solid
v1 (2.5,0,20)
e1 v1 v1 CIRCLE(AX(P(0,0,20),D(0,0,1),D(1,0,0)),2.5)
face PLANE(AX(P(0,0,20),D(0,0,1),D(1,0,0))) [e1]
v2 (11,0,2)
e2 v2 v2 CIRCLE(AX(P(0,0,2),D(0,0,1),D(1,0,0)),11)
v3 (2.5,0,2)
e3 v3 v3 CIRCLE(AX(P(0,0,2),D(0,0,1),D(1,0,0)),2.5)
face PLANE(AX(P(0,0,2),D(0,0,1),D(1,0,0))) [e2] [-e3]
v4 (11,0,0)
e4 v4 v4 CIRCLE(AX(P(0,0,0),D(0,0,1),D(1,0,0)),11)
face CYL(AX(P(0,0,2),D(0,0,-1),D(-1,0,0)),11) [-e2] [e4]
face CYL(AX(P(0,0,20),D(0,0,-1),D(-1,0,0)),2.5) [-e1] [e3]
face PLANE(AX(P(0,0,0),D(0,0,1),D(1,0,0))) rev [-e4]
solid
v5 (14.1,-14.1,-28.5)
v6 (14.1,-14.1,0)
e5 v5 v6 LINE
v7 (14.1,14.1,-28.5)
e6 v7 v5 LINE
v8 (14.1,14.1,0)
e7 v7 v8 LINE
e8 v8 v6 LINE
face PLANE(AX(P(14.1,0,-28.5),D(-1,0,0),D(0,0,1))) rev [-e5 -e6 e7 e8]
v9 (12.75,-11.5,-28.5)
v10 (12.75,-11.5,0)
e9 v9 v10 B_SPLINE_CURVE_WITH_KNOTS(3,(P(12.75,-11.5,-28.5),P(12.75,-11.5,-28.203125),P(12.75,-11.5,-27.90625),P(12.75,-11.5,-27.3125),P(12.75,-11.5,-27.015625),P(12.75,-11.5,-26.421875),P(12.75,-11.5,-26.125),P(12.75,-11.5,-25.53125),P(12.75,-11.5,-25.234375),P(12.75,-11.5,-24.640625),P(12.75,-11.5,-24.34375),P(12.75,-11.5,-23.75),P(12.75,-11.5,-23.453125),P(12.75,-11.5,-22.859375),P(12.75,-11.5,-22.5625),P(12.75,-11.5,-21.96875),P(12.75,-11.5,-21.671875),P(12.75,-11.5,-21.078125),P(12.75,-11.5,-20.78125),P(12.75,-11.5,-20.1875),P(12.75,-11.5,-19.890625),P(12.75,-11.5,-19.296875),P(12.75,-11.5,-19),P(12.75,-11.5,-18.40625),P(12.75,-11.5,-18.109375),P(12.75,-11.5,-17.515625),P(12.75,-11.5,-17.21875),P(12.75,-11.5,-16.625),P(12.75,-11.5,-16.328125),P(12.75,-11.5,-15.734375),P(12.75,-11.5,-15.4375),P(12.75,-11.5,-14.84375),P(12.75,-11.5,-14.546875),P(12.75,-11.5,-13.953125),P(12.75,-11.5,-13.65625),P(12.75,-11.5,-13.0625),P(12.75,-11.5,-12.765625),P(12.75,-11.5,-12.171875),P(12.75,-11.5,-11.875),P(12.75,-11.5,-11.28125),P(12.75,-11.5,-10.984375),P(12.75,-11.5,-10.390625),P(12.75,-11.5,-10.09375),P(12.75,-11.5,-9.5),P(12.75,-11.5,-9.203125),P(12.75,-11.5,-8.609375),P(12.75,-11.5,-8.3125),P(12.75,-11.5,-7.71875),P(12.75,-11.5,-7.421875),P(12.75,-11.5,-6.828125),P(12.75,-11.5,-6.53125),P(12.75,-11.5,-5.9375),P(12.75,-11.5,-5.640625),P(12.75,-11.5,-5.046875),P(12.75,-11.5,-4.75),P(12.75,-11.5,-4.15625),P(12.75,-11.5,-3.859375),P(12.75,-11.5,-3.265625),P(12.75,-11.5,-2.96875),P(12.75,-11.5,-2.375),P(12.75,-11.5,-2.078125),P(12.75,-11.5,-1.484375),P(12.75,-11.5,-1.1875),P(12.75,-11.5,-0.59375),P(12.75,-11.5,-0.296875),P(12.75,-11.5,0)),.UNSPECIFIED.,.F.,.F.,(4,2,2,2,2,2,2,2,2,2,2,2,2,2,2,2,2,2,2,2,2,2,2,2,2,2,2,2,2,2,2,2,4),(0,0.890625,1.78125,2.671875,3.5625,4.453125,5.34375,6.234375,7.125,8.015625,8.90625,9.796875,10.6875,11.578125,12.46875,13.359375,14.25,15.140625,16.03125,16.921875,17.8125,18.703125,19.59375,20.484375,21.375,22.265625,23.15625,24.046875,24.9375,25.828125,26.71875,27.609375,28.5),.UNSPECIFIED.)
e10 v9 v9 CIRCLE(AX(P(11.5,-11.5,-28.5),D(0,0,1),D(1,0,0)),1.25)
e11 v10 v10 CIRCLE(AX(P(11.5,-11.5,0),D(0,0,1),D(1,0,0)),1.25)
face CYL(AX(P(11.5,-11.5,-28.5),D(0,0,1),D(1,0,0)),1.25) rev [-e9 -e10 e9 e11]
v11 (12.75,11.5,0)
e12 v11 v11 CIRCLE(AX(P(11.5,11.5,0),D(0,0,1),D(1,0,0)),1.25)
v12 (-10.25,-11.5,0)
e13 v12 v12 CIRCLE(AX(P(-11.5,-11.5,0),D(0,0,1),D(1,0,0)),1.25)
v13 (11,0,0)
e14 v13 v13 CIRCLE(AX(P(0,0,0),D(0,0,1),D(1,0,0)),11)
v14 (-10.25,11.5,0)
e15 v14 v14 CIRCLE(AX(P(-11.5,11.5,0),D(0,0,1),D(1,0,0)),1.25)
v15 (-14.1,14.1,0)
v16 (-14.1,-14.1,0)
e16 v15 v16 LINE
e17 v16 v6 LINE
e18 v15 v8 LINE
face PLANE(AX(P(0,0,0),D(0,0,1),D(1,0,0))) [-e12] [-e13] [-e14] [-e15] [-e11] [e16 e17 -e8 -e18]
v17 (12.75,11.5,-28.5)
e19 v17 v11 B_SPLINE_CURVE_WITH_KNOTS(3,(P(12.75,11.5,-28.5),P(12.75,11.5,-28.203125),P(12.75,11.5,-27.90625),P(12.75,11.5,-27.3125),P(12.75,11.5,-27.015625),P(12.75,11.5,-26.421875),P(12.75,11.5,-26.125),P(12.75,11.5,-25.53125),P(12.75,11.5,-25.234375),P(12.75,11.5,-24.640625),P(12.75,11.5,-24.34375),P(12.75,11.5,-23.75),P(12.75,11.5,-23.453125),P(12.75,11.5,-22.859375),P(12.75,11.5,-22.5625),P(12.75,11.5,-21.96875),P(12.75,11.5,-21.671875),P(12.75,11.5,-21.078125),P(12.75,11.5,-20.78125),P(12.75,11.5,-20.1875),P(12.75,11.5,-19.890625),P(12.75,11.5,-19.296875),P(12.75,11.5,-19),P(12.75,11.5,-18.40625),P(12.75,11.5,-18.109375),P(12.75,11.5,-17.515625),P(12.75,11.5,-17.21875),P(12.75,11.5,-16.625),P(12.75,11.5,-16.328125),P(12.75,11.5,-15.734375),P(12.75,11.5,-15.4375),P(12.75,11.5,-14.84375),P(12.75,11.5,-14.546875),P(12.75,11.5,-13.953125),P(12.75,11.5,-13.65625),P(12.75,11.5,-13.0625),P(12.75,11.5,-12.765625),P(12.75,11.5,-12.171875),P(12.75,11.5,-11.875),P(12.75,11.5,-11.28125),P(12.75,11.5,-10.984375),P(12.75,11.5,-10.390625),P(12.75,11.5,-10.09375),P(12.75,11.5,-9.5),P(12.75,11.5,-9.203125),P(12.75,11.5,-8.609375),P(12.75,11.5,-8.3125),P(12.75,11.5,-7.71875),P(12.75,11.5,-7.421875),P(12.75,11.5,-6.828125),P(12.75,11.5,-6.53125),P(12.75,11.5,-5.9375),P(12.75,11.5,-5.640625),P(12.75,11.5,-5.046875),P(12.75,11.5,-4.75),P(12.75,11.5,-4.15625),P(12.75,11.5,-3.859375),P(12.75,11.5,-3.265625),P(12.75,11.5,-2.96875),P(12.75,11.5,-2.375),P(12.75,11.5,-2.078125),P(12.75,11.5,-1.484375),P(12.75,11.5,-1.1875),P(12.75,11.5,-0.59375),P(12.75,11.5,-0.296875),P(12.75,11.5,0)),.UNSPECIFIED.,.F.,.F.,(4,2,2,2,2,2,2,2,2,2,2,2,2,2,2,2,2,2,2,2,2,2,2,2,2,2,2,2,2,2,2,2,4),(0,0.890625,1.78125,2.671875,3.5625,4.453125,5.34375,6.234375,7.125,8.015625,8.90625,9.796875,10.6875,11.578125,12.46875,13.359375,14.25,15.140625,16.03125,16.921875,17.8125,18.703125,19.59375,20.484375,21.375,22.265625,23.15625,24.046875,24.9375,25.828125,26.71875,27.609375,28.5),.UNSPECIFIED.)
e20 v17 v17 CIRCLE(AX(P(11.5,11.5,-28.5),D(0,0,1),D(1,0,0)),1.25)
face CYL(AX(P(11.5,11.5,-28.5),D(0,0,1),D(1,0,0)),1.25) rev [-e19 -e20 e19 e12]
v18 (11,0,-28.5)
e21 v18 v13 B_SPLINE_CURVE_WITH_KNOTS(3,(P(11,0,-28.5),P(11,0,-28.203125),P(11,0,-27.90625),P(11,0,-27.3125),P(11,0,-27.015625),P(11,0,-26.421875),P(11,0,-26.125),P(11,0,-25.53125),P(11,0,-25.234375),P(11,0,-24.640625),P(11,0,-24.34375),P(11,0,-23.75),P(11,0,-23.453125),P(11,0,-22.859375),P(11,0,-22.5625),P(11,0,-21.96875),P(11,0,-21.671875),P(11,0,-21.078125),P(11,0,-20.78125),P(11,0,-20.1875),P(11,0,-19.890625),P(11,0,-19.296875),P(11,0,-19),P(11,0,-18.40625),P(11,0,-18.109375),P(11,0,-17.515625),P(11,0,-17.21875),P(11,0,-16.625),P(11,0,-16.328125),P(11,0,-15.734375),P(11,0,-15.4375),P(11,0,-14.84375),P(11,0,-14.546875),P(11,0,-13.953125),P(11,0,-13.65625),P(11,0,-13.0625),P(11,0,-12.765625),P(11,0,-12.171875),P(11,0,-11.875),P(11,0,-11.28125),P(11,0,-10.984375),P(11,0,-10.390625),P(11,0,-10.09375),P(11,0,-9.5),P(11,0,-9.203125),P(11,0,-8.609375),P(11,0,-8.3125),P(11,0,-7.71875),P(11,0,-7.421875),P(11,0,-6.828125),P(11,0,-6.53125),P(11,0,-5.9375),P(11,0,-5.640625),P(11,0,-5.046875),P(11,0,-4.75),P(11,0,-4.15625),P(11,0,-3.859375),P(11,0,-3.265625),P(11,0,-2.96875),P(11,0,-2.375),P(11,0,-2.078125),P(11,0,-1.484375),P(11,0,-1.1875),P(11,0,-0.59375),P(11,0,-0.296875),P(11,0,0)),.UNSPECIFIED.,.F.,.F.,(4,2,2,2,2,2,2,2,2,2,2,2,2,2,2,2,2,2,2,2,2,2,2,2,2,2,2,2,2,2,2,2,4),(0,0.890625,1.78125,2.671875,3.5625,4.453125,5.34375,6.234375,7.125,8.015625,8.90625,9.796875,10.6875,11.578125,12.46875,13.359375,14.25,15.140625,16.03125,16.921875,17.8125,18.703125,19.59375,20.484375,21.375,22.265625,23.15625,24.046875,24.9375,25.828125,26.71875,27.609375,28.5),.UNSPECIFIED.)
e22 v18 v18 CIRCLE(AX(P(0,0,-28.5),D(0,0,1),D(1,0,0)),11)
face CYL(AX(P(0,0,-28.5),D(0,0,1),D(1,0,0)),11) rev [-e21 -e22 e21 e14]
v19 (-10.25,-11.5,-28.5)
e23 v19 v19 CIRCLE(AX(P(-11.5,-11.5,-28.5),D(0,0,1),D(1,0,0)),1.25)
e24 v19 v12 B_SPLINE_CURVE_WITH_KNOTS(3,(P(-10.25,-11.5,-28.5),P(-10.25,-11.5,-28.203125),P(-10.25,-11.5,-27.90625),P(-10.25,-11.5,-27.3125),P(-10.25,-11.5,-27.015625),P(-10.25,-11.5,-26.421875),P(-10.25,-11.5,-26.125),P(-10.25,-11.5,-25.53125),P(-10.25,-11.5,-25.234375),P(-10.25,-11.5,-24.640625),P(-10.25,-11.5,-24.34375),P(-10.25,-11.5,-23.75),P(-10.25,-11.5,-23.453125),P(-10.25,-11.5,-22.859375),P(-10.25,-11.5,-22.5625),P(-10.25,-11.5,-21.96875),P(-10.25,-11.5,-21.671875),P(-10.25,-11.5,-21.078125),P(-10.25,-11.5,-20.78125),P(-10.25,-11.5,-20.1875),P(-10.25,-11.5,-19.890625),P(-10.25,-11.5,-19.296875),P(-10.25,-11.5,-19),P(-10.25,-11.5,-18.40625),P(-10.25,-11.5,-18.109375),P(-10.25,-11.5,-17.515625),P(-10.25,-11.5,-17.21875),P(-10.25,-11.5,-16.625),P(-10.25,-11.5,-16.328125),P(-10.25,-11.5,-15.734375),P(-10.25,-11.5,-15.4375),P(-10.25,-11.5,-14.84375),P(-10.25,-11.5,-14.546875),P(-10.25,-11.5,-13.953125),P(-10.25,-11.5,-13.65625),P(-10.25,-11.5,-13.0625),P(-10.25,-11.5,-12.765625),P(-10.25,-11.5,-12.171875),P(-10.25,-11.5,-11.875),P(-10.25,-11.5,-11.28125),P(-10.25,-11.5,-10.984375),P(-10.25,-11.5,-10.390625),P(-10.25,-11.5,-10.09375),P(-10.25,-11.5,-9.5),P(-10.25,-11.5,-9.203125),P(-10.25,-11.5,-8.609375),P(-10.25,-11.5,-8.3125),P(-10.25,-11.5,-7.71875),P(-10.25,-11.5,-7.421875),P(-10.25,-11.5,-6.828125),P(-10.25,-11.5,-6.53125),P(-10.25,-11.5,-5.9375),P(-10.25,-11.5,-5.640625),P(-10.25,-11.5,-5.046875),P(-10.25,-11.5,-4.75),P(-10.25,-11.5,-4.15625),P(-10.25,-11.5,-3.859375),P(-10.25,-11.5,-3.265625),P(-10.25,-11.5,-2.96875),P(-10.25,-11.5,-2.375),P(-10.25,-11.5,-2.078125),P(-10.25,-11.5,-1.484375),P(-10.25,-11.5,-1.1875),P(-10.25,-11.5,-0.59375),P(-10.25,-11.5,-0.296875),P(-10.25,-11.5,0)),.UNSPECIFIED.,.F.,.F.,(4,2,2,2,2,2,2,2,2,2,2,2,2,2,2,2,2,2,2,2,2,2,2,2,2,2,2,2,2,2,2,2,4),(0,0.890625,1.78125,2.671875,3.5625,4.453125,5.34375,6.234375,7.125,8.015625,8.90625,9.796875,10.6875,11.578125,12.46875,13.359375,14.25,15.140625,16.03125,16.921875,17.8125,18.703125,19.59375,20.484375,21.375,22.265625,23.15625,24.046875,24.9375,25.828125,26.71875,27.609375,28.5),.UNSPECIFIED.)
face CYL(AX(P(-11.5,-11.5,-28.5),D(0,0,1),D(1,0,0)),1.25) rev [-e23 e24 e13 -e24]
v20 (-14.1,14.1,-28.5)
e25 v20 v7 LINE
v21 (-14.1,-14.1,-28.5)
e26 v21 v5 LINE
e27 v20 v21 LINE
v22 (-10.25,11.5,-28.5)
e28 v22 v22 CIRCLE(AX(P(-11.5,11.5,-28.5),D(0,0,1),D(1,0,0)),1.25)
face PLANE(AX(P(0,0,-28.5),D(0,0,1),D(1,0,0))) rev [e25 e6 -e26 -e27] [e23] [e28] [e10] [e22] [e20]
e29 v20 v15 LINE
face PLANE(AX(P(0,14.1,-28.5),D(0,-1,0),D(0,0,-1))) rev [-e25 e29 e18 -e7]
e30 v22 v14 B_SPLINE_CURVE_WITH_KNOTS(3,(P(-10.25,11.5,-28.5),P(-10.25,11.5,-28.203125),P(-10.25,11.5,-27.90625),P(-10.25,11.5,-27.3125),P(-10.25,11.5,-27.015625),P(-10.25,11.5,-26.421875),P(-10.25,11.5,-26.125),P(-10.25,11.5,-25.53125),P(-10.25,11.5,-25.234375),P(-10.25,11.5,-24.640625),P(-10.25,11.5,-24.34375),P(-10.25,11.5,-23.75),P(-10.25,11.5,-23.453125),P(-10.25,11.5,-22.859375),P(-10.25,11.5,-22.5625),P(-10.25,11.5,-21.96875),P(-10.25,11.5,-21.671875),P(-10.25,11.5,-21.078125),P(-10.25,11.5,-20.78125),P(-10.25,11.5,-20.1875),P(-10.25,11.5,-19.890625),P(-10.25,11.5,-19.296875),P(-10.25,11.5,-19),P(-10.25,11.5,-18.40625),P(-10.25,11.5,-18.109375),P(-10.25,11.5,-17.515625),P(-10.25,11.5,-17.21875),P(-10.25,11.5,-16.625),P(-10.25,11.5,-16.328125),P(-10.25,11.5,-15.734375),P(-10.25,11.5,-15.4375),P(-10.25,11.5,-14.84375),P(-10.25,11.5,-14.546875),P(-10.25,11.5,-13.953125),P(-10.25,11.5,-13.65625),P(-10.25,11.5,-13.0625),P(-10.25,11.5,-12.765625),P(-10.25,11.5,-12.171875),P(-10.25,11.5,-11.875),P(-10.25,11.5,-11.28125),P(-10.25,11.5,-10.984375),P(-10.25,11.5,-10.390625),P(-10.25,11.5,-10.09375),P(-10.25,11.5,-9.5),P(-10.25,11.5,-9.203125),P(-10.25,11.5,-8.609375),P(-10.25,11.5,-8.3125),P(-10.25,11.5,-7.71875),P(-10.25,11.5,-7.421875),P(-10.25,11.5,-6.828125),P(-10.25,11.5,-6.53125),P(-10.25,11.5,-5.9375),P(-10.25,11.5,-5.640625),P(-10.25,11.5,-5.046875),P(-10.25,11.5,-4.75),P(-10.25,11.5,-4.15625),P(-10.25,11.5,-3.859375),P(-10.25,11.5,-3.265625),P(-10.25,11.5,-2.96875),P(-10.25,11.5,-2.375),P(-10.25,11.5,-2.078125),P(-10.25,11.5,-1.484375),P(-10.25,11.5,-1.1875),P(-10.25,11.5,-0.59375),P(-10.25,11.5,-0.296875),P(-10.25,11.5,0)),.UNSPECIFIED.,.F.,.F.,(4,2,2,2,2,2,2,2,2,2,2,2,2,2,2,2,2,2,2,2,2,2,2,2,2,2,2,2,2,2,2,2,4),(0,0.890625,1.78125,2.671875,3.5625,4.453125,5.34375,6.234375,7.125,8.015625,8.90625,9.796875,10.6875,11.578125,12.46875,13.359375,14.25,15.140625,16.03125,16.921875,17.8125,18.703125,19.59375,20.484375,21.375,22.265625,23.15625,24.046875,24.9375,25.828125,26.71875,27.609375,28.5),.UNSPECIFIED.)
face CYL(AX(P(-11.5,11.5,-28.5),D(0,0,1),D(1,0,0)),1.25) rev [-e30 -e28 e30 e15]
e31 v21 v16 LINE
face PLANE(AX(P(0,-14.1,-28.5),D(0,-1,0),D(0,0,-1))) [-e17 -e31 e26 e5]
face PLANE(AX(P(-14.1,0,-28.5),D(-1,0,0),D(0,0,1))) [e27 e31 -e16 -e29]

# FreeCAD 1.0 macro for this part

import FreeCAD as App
import Part
import Sketcher
from FreeCAD import Vector
Q = App.Units.Quantity


def add_polygon(sketch, points):
    """Adds a closed chain of lines whose ends are joined by coincident constraints."""
    first, n = sketch.GeometryCount, len(points)
    for a, b in zip(points, points[1:] + points[:1]):
        sketch.addGeometry(Part.LineSegment(App.Vector(*a, 0), App.Vector(*b, 0)), False)
    for i in range(n):
        sketch.addConstraint(Sketcher.Constraint("Coincident", first + i, 2, first + (i + 1) % n, 1))

doc = App.newDocument("Part")
params = doc.addObject("Spreadsheet::Sheet", "Params")
for row, (alias, value) in enumerate([
    ("sketch1_diameter", "5 mm"),
    ("pad1_length", "20 mm"),
    ("sketch2_diameter", "22 mm"),
    ("pad2_length", "2 mm"),
    ("sketch3_diameter", "22 mm"),
    ("sketch3_diameter2", "2.5 mm"),
    ("sketch3_width", "28.2 mm"),
    ("pad3_length", "28.5 mm"),
], start=1):
    params.set(f"A{row}", alias)
    params.set(f"B{row}", "=" + value)
    params.setAlias(f"B{row}", alias)

body = doc.addObject("PartDesign::Body", "Body")

sketch1 = doc.addObject("Sketcher::SketchObject", "Sketch")
body.addObject(sketch1)
sketch1.AttachmentSupport = (doc.XY_Plane, [""])
sketch1.MapMode = "FlatFace"
sketch1.addGeometry(Part.Circle(Vector(0, 0, 0), Vector(0, 0, 1), 2.5), False)
sketch1.addConstraint(Sketcher.Constraint("Coincident", 0, 3, -1, 1))
sketch1.addConstraint(Sketcher.Constraint("Diameter", 0, Q("5 mm")))
sketch1.setExpression("Constraints[1]", "Params.sketch1_diameter")
pad1 = doc.addObject("PartDesign::Pad", "Pad")
body.addObject(pad1)
pad1.Profile = sketch1
pad1.setExpression("Length", "Params.pad1_length")

sketch2 = doc.addObject("Sketcher::SketchObject", "Sketch001")
body.addObject(sketch2)
sketch2.AttachmentSupport = (doc.XY_Plane, [""])
sketch2.MapMode = "FlatFace"
sketch2.addGeometry(Part.Circle(Vector(0, 0, 0), Vector(0, 0, 1), 11), False)
sketch2.addConstraint(Sketcher.Constraint("Coincident", 0, 3, -1, 1))
sketch2.addConstraint(Sketcher.Constraint("Diameter", 0, Q("22 mm")))
sketch2.setExpression("Constraints[1]", "Params.sketch2_diameter")
pad2 = doc.addObject("PartDesign::Pad", "Pad001")
body.addObject(pad2)
pad2.Profile = sketch2
pad2.setExpression("Length", "Params.pad2_length")
body2 = doc.addObject("PartDesign::Body", "Body001")

sketch3 = doc.addObject("Sketcher::SketchObject", "Sketch002")
body2.addObject(sketch3)
sketch3.AttachmentSupport = (doc.getObject("XY_Plane001"), [""])
sketch3.MapMode = "FlatFace"
add_polygon(sketch3, [(-14.1, 14.1), (-14.1, -14.1), (14.1, -14.1), (14.1, 14.1)])
sketch3.addGeometry(Part.Circle(Vector(-11.5, -11.5, 0), Vector(0, 0, 1), 1.25), False)
sketch3.addGeometry(Part.Circle(Vector(11.5, -11.5, 0), Vector(0, 0, 1), 1.25), False)
sketch3.addGeometry(Part.Circle(Vector(-11.5, 11.5, 0), Vector(0, 0, 1), 1.25), False)
sketch3.addGeometry(Part.Circle(Vector(0, 0, 0), Vector(0, 0, 1), 11), False)
sketch3.addGeometry(Part.Circle(Vector(11.5, 11.5, 0), Vector(0, 0, 1), 1.25), False)
sketch3.addConstraint(Sketcher.Constraint("Vertical", 0))
sketch3.addConstraint(Sketcher.Constraint("Horizontal", 1))
sketch3.addConstraint(Sketcher.Constraint("Vertical", 2))
sketch3.addConstraint(Sketcher.Constraint("Horizontal", 3))
sketch3.addConstraint(Sketcher.Constraint("Coincident", 7, 3, -1, 1))
sketch3.addConstraint(Sketcher.Constraint("Equal", 4, 5))
sketch3.addConstraint(Sketcher.Constraint("Equal", 5, 6))
sketch3.addConstraint(Sketcher.Constraint("Equal", 6, 8))
sketch3.addConstraint(Sketcher.Constraint("Symmetric", 5, 3, 6, 3, -1, 1))
sketch3.addConstraint(Sketcher.Constraint("Symmetric", 4, 3, 8, 3, -1, 1))
sketch3.addConstraint(Sketcher.Constraint("Symmetric", 0, 2, 2, 2, -1, 1))
sketch3.addConstraint(Sketcher.Constraint("Symmetric", 4, 3, 5, 3, -2))
sketch3.addConstraint(Sketcher.Constraint("Equal", 3, 0))
sketch3.addConstraint(Sketcher.Constraint("Diameter", 7, Q("22 mm")))
sketch3.addConstraint(Sketcher.Constraint("Diameter", 4, Q("2.5 mm")))
sketch3.addConstraint(Sketcher.Constraint("DistanceX", 1, 1, 1, 2, Q("28.2 mm")))
sketch3.addConstraint(Sketcher.Constraint("DistanceX", 4, 3, 5, 3, Q("23 mm")))
sketch3.addConstraint(Sketcher.Constraint("DistanceY", 4, 3, 6, 3, Q("23 mm")))
sketch3.setExpression("Constraints[17]", "Params.sketch3_diameter")
sketch3.setExpression("Constraints[18]", "Params.sketch3_diameter2")
sketch3.setExpression("Constraints[19]", "Params.sketch3_width")
pad3 = doc.addObject("PartDesign::Pad", "Pad002")
body2.addObject(pad3)
pad3.Profile = sketch3
pad3.setExpression("Length", "Params.pad3_length")
pad3.Reversed = True

doc.recompute()
